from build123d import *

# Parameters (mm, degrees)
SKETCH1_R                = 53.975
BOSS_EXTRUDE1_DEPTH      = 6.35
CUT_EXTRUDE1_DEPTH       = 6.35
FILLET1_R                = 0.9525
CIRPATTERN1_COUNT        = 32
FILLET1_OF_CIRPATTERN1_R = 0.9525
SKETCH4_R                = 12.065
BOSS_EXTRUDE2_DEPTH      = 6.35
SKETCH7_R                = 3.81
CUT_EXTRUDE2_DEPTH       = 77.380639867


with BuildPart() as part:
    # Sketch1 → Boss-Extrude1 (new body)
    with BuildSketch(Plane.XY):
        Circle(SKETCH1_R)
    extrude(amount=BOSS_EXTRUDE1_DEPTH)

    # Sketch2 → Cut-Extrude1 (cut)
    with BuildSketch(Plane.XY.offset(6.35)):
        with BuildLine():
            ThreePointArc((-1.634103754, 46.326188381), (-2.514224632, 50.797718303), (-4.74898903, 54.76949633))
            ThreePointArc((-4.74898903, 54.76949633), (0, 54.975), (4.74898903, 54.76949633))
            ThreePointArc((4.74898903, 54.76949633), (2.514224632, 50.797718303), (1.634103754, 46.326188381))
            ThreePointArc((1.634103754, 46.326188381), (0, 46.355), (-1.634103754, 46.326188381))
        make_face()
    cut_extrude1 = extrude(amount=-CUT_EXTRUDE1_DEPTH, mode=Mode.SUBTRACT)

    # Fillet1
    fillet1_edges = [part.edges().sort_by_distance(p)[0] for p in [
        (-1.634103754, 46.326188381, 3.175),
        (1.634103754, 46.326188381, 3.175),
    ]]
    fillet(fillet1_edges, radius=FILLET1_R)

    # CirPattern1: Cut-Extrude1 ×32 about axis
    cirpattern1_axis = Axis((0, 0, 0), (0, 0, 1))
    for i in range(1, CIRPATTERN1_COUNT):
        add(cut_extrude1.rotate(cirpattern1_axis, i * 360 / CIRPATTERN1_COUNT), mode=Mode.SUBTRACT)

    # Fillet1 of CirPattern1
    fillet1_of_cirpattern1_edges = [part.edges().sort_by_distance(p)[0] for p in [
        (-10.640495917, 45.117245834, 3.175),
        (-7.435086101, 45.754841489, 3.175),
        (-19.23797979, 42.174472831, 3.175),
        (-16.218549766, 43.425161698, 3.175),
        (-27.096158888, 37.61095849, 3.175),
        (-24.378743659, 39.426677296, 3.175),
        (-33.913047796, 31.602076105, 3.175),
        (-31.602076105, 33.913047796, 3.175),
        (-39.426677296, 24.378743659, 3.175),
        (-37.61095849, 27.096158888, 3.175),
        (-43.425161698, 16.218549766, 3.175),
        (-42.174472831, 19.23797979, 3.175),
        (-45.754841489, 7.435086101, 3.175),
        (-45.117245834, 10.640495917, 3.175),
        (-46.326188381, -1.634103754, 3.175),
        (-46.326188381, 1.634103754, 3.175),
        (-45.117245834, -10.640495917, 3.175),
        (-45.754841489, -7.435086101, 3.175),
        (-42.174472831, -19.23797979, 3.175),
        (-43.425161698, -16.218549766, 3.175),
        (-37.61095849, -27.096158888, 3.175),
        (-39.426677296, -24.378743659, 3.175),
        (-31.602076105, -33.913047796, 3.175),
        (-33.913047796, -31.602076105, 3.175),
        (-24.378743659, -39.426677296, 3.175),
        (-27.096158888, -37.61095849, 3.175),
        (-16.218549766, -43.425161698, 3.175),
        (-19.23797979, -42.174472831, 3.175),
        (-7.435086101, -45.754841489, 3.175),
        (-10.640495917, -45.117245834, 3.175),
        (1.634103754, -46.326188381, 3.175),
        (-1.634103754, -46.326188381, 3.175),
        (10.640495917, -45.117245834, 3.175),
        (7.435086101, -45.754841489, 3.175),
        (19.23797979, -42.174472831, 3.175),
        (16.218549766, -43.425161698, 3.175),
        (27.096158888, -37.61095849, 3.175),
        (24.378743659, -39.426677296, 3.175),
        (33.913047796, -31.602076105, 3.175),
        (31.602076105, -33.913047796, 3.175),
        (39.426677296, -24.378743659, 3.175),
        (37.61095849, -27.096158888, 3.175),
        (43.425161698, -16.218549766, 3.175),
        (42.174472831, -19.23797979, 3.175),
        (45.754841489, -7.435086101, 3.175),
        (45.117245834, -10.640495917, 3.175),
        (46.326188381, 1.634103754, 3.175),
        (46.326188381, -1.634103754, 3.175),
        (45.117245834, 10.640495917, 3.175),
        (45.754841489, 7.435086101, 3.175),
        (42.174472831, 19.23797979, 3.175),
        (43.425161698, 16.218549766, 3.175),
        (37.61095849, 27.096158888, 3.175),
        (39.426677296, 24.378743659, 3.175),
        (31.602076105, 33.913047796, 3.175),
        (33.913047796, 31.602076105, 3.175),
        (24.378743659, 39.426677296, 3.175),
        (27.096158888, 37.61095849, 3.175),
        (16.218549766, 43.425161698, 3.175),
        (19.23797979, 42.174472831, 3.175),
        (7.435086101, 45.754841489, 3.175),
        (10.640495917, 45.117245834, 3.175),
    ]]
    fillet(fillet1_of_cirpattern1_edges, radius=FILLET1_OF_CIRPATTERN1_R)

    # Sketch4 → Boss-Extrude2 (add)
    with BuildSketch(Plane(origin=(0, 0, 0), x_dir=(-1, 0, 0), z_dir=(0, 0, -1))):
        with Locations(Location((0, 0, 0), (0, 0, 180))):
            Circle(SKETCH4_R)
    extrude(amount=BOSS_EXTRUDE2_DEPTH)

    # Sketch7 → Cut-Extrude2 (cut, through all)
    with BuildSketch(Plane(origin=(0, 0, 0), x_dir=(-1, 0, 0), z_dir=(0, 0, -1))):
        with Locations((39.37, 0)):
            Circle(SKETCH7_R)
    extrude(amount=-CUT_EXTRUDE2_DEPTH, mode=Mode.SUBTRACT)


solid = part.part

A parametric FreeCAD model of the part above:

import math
import FreeCAD as App
import Part
import Sketcher
Q = App.Units.Quantity


def edges_at(feature, points):
    """Names of the edges that pass closest to the given points."""
    edges = feature.Shape.Edges
    near = lambda p: min(range(len(edges)), key=lambda i: edges[i].distToShape(Part.Vertex(*p))[0])
    return sorted({f"Edge{near(p) + 1}" for p in points})

doc = App.newDocument("Part")
body = doc.addObject("PartDesign::Body", "Body")

# Sketch on XY plane
sketch1 = body.newObject("Sketcher::SketchObject", "Sketch")
sketch1.AttachmentSupport = (doc.getObject("XY_Plane"), [""])
sketch1.MapMode = "FlatFace"
sketch1.addGeometry(Part.Circle(App.Vector(0, 0, 0), App.Vector(0, 0, 1), 54), False)
sketch1.addConstraint(Sketcher.Constraint("Coincident", 0, 3, -1, 1))
sketch1.addConstraint(Sketcher.Constraint("Diameter", 0, Q("4.25 in")))
pad1 = body.newObject("PartDesign::Pad", "Pad")
pad1.Profile = sketch1
pad1.Length = Q("0.25 in")

# Sketch on XY plane
sketch2 = body.newObject("Sketcher::SketchObject", "Sketch001")
sketch2.AttachmentSupport = (doc.getObject("XY_Plane"), [""])
sketch2.MapMode = "FlatFace"
sketch2.AttachmentOffset = App.Placement(App.Vector(0, 0, 0.25 * 25.4), App.Rotation())
sketch2.addGeometry(Part.ArcOfCircle(Part.Circle(App.Vector(-16, 45.8, 0), App.Vector(0, 0, 1), 14.4), math.radians(2), math.radians(38)), False)
sketch2.addGeometry(Part.ArcOfCircle(Part.Circle(App.Vector(0, 0, 0), App.Vector(0, 0, 1), 46.4), math.radians(87.98), math.radians(92.02)), False)
sketch2.addGeometry(Part.ArcOfCircle(Part.Circle(App.Vector(16, 45.8, 0), App.Vector(0, 0, 1), 14.4), math.radians(142), math.radians(178)), False)
sketch2.addGeometry(Part.ArcOfCircle(Part.Circle(App.Vector(0, 0, 0), App.Vector(0, 0, 1), 55), math.radians(85.04), math.radians(94.96)), False)
sketch2.addConstraint(Sketcher.Constraint("Coincident", 0, 1, 1, 2))
sketch2.addConstraint(Sketcher.Constraint("Coincident", 1, 1, 2, 2))
sketch2.addConstraint(Sketcher.Constraint("Coincident", 2, 1, 3, 1))
sketch2.addConstraint(Sketcher.Constraint("Coincident", 3, 2, 0, 2))
sketch2.addConstraint(Sketcher.Constraint("Coincident", 1, 3, -1, 1))
sketch2.addConstraint(Sketcher.Constraint("Coincident", 3, 3, -1, 1))
sketch2.addConstraint(Sketcher.Constraint("Equal", 0, 2))
sketch2.addConstraint(Sketcher.Constraint("Symmetric", 0, 3, 2, 3, -2))
sketch2.addConstraint(Sketcher.Constraint("Radius", 1, Q("1.825 in")))
sketch2.addConstraint(Sketcher.Constraint("Radius", 3, 54.975))
sketch2.addConstraint(Sketcher.Constraint("Radius", 0, 14.384218))
sketch2.addConstraint(Sketcher.Constraint("DistanceX", 0, 3, -1, 1, 16.009382))
sketch2.addConstraint(Sketcher.Constraint("DistanceX", -1, 1, 2, 1, 4.748989))
pocket1 = body.newObject("PartDesign::Pocket", "Pocket")
pocket1.Profile = sketch2
pocket1.Length = Q("0.25 in")
doc.recompute()

fillet = body.newObject("PartDesign::Fillet", "Fillet")
fillet.Base = (pocket1, edges_at(pocket1, [(-1.634, 46.326, 3.175), (1.634, 46.326, 3.175)]))
fillet.Radius = Q("0.0375 in")
doc.recompute()

polarpattern = body.newObject("PartDesign::PolarPattern", "PolarPattern")
polarpattern.Originals = [pocket1]
polarpattern.Axis = (doc.getObject("Z_Axis"), [""])
polarpattern.Angle = 360
polarpattern.Occurrences = 32
body.Tip = polarpattern
doc.recompute()

fillet2 = body.newObject("PartDesign::Fillet", "Fillet001")
fillet2.Base = (polarpattern, edges_at(polarpattern, [
    (-10.64, 45.117, 3.175),
    (-7.435, 45.755, 3.175),
    (-19.238, 42.174, 3.175),
    (-16.219, 43.425, 3.175),
    (-27.096, 37.611, 3.175),
    (-24.379, 39.427, 3.175),
    (-33.913, 31.602, 3.175),
    (-31.602, 33.913, 3.175),
    (-39.427, 24.379, 3.175),
    (-37.611, 27.096, 3.175),
    (-43.425, 16.219, 3.175),
    (-42.174, 19.238, 3.175),
    (-45.755, 7.435, 3.175),
    (-45.117, 10.64, 3.175),
    (-46.326, -1.634, 3.175),
    (-46.326, 1.634, 3.175),
    (-45.117, -10.64, 3.175),
    (-45.755, -7.435, 3.175),
    (-42.174, -19.238, 3.175),
    (-43.425, -16.219, 3.175),
    (-37.611, -27.096, 3.175),
    (-39.427, -24.379, 3.175),
    (-31.602, -33.913, 3.175),
    (-33.913, -31.602, 3.175),
    (-24.379, -39.427, 3.175),
    (-27.096, -37.611, 3.175),
    (-16.219, -43.425, 3.175),
    (-19.238, -42.174, 3.175),
    (-7.435, -45.755, 3.175),
    (-10.64, -45.117, 3.175),
    (1.634, -46.326, 3.175),
    (-1.634, -46.326, 3.175),
    (10.64, -45.117, 3.175),
    (7.435, -45.755, 3.175),
    (19.238, -42.174, 3.175),
    (16.219, -43.425, 3.175),
    (27.096, -37.611, 3.175),
    (24.379, -39.427, 3.175),
    (33.913, -31.602, 3.175),
    (31.602, -33.913, 3.175),
    (39.427, -24.379, 3.175),
    (37.611, -27.096, 3.175),
    (43.425, -16.219, 3.175),
    (42.174, -19.238, 3.175),
    (45.755, -7.435, 3.175),
    (45.117, -10.64, 3.175),
    (46.326, 1.634, 3.175),
    (46.326, -1.634, 3.175),
    (45.117, 10.64, 3.175),
    (45.755, 7.435, 3.175),
    (42.174, 19.238, 3.175),
    (43.425, 16.219, 3.175),
    (37.611, 27.096, 3.175),
    (39.427, 24.379, 3.175),
    (31.602, 33.913, 3.175),
    (33.913, 31.602, 3.175),
    (24.379, 39.427, 3.175),
    (27.096, 37.611, 3.175),
    (16.219, 43.425, 3.175),
    (19.238, 42.174, 3.175),
    (7.435, 45.755, 3.175),
    (10.64, 45.117, 3.175),
]))
fillet2.Radius = Q("0.0375 in")

# Sketch on XY plane
sketch3 = body.newObject("Sketcher::SketchObject", "Sketch002")
sketch3.AttachmentSupport = (doc.getObject("XY_Plane"), [""])
sketch3.MapMode = "FlatFace"
sketch3.addGeometry(Part.Circle(App.Vector(0, 0, 0), App.Vector(0, 0, 1), 12), False)
sketch3.addConstraint(Sketcher.Constraint("Coincident", 0, 3, -1, 1))
sketch3.addConstraint(Sketcher.Constraint("Diameter", 0, Q("0.95 in")))
pad2 = body.newObject("PartDesign::Pad", "Pad001")
pad2.Profile = sketch3
pad2.Length = Q("0.25 in")
pad2.Reversed = True

# Sketch on XY plane
sketch4 = body.newObject("Sketcher::SketchObject", "Sketch003")
sketch4.AttachmentSupport = (doc.getObject("XY_Plane"), [""])
sketch4.MapMode = "FlatFace"
sketch4.addGeometry(Part.Circle(App.Vector(-39.4, 0, 0), App.Vector(0, 0, 1), 3.8), False)
sketch4.addConstraint(Sketcher.Constraint("PointOnObject", 0, 3, -1))
sketch4.addConstraint(Sketcher.Constraint("Diameter", 0, Q("0.3 in")))
sketch4.addConstraint(Sketcher.Constraint("DistanceX", 0, 3, -1, 1, Q("1.55 in")))
pocket2 = body.newObject("PartDesign::Pocket", "Pocket001")
pocket2.Profile = sketch4
pocket2.Type = "ThroughAll"
pocket2.Reversed = True

doc.recompute()
